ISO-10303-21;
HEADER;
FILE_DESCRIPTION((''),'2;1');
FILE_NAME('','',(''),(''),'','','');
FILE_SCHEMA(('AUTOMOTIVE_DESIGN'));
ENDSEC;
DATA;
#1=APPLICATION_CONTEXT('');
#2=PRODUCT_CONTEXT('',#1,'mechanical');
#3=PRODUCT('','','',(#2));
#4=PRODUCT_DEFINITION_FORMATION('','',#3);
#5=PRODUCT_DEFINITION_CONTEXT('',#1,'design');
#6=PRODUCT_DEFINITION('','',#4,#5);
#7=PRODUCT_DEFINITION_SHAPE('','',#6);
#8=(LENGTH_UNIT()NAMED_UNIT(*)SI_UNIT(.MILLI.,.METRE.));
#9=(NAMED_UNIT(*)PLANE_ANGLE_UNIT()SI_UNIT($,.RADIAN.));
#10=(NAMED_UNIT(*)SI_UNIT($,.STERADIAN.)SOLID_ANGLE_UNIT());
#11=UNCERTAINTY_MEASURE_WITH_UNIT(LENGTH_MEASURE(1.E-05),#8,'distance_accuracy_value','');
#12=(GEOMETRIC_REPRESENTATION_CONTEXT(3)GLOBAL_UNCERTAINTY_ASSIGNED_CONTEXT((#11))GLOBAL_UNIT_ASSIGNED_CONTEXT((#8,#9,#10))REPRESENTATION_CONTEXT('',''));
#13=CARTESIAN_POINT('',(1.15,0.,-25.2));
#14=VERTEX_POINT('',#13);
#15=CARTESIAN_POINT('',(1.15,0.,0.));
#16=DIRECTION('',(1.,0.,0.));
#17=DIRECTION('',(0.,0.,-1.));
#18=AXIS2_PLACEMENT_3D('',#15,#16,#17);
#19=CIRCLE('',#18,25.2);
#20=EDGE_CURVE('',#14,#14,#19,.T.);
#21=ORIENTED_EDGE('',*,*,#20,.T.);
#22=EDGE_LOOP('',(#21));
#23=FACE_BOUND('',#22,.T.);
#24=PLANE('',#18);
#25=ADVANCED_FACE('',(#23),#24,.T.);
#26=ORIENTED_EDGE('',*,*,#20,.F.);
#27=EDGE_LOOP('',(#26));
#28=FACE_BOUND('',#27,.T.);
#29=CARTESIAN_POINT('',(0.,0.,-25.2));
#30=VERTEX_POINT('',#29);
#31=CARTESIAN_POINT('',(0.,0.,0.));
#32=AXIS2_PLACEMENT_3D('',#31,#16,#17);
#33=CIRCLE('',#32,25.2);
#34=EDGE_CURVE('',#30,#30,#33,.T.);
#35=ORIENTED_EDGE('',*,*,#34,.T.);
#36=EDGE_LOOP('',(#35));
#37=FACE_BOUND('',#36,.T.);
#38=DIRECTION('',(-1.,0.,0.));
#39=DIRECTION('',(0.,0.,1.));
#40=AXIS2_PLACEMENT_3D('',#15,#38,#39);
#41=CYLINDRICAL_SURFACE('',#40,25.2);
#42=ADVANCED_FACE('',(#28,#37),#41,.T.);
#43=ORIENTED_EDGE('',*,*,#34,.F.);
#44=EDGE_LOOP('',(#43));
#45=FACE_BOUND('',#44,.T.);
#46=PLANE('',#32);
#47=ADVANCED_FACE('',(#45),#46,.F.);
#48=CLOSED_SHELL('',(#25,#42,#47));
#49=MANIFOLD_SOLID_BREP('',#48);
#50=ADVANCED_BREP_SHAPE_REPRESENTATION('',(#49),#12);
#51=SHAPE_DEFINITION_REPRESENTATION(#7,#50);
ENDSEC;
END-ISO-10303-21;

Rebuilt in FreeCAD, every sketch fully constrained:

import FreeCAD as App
import Part
import Sketcher

V = App.Vector
Q = App.Units.Quantity

doc = App.newDocument("Part")
body = doc.addObject("PartDesign::Body", "Body")

# Sketch on YZ plane
sketch1 = body.newObject("Sketcher::SketchObject", "Sketch")
sketch1.AttachmentSupport = (doc.getObject("YZ_Plane"), [""])
sketch1.MapMode = "FlatFace"
sketch1.addGeometry(Part.Circle(V(0, 0, 0), V(0, 0, 1), 25), False)
sketch1.addConstraint(Sketcher.Constraint("Coincident", 0, 3, -1, 1))
sketch1.addConstraint(Sketcher.Constraint("Diameter", 0, Q("50.4 mm")))
pad1 = body.newObject("PartDesign::Pad", "Pad")
pad1.Profile = sketch1
pad1.Length = 1.15

doc.recompute()
